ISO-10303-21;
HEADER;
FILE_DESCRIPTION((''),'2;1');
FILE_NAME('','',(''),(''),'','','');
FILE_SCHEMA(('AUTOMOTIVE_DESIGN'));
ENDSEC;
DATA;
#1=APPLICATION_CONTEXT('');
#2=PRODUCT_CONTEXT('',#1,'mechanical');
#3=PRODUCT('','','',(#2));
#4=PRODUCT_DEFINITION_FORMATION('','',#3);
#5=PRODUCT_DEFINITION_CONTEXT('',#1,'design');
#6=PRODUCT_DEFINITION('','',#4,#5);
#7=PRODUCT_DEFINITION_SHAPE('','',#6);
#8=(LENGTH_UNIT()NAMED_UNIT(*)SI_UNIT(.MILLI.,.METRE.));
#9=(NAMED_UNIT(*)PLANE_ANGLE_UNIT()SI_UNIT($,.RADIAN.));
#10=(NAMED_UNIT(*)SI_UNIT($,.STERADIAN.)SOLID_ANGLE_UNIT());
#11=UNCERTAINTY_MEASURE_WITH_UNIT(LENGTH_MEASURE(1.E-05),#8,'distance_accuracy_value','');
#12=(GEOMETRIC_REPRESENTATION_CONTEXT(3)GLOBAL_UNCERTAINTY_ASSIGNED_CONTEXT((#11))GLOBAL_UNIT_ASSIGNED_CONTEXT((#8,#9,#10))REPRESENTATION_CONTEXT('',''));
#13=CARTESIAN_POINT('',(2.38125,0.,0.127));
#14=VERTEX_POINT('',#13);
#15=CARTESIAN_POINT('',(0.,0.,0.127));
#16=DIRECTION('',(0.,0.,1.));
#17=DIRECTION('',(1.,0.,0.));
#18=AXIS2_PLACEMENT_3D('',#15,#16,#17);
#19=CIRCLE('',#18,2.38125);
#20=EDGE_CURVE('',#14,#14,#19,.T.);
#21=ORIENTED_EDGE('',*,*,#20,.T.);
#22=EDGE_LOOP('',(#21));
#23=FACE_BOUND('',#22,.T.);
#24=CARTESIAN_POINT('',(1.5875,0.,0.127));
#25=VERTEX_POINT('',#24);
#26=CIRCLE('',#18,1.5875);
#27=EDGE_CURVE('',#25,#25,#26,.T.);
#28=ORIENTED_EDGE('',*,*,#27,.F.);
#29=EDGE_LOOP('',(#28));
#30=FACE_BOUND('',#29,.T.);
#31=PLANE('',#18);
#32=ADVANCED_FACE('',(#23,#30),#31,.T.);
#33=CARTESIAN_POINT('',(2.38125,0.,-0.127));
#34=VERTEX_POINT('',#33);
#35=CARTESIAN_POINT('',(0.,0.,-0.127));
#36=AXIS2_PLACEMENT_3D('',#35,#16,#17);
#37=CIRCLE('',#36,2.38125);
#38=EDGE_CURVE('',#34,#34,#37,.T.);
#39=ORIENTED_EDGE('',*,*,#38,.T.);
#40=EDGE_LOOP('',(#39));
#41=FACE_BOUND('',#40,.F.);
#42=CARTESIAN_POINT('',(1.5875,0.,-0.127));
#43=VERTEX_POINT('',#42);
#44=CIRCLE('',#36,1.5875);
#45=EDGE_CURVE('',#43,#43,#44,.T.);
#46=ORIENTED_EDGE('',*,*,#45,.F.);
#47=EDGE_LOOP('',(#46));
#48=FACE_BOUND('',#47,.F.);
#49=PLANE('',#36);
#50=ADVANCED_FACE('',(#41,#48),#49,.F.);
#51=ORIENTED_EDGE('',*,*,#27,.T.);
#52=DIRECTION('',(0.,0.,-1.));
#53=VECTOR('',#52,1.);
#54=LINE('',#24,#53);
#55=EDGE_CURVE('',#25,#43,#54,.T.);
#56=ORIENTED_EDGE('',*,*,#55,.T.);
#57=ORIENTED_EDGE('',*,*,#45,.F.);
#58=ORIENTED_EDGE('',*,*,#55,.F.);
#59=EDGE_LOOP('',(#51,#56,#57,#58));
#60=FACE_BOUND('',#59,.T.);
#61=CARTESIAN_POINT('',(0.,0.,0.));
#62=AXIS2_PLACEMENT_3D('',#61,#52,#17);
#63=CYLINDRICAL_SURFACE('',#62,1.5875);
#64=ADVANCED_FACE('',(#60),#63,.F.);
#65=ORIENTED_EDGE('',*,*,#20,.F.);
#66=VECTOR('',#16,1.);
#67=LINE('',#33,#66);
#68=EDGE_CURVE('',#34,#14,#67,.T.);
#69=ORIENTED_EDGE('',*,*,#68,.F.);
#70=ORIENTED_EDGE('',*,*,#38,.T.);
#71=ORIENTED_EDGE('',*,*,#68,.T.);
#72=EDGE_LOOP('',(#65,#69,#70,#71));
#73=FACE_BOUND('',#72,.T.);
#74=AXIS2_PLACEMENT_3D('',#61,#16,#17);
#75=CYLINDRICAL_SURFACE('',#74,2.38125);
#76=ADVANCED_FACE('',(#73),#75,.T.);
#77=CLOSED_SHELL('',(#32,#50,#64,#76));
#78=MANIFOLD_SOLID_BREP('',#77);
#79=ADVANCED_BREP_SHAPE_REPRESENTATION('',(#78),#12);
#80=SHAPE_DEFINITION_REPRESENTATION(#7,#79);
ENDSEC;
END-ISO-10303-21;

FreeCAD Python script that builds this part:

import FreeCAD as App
import Part
import Sketcher

V = App.Vector
Q = App.Units.Quantity

doc = App.newDocument("Part")
body = doc.addObject("PartDesign::Body", "Body")

sketch1 = body.newObject("Sketcher::SketchObject", "Sketch")
sketch1.AttachmentSupport = (doc.getObject("XY_Plane"), [""])
sketch1.MapMode = "FlatFace"
sketch1.addGeometry([
    Part.Circle(V(0, 0, 0), V(0, 0, 1), 2.38125),
    Part.Circle(V(0, 0, 0), V(0, 0, 1), 1.5875),
], False)
sketch1.addConstraint([
    Sketcher.Constraint("Coincident", 0, 3, -1, 1),
    Sketcher.Constraint("Coincident", 1, 3, -1, 1),
    Sketcher.Constraint("Diameter", 0, Q("0.1875 in")),
    Sketcher.Constraint("Diameter", 1, Q("0.125 in")),
])
pad1 = body.newObject("PartDesign::Pad", "Pad")
pad1.Profile = sketch1
pad1.Length = Q("0.01 in")
pad1.Midplane = True

doc.recompute()
